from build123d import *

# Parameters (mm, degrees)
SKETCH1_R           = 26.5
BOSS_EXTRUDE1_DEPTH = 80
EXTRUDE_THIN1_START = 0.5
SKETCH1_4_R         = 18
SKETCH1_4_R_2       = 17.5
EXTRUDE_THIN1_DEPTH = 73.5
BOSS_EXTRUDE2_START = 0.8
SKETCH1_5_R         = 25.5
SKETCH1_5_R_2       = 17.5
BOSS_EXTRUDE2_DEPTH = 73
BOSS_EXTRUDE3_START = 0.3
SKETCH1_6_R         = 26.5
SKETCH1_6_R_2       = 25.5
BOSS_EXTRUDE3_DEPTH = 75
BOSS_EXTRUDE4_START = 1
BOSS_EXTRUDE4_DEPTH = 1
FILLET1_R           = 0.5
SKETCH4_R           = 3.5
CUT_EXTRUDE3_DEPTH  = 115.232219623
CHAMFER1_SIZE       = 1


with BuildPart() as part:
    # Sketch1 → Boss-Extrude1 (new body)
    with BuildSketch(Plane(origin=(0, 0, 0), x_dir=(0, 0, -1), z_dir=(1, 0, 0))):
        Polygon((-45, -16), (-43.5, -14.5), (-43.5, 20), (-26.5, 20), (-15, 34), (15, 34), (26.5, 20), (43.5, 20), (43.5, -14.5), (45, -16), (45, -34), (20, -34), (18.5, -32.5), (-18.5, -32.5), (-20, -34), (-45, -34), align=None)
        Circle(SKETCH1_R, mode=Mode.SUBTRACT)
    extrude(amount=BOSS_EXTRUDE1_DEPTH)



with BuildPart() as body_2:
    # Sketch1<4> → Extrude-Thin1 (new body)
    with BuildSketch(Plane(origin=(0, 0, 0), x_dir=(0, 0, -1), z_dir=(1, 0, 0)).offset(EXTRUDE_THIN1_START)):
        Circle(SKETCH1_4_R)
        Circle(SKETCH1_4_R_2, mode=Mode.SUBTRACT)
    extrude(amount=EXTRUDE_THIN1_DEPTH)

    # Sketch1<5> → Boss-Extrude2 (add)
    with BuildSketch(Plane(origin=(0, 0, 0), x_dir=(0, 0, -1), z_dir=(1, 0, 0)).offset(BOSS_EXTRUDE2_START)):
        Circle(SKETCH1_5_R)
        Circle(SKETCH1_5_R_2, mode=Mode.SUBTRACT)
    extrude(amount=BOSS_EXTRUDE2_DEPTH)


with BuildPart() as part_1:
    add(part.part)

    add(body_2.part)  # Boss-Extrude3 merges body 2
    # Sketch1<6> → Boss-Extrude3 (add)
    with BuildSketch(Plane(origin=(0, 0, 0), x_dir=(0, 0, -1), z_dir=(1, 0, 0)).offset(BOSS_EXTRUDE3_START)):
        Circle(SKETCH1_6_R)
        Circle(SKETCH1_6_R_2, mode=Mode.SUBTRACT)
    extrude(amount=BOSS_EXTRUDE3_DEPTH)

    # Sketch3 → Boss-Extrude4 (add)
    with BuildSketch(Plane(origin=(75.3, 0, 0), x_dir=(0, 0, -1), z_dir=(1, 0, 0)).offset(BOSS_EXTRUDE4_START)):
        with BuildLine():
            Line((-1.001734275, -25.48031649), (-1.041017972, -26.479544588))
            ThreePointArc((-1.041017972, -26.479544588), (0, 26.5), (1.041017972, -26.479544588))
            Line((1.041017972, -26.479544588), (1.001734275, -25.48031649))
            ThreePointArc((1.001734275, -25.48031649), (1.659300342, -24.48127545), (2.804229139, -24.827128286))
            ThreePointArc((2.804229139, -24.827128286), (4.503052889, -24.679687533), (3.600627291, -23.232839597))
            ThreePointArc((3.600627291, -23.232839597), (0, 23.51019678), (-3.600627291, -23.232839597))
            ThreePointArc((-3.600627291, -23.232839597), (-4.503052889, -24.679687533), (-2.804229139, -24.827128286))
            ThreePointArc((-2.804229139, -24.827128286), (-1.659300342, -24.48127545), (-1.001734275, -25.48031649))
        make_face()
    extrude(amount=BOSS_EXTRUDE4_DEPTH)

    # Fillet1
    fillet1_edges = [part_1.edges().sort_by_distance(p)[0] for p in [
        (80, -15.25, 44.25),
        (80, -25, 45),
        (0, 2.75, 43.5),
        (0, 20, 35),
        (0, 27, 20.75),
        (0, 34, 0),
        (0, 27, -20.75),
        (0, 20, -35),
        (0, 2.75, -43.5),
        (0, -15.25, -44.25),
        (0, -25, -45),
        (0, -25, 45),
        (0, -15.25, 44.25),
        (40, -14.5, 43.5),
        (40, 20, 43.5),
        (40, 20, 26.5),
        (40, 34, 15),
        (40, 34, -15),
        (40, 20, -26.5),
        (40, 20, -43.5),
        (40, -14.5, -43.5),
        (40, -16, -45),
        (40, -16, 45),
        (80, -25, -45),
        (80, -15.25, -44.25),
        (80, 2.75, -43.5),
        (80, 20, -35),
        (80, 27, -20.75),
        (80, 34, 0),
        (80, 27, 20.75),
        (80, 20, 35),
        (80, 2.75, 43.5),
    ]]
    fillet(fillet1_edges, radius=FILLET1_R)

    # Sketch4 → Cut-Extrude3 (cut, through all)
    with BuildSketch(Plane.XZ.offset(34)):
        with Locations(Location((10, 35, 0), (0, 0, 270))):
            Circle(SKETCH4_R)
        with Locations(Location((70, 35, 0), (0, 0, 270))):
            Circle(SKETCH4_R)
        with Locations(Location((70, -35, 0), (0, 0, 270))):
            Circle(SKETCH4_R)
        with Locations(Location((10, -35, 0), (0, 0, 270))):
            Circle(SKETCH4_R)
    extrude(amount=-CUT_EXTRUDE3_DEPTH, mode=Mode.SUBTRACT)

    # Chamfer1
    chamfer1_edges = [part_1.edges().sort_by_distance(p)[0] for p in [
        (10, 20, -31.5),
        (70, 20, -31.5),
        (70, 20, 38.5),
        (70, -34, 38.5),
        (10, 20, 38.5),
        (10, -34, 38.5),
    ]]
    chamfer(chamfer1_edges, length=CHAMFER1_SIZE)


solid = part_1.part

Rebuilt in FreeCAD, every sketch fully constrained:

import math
import FreeCAD as App
import Part
import Sketcher


def edges_at(feature, points):
    """Names of the edges that pass closest to the given points."""
    edges = feature.Shape.Edges
    near = lambda p: min(range(len(edges)), key=lambda i: edges[i].distToShape(Part.Vertex(*p))[0])
    return sorted({f"Edge{near(p) + 1}" for p in points})

doc = App.newDocument("Part")
params = doc.addObject("Spreadsheet::Sheet", "Params")
for row, (alias, value) in enumerate([
    ("sketch1_diameter", "53 mm"),
    ("sketch1_width", "18 mm"),
    ("sketch1_height", "25 mm"),
    ("sketch1_height2", "37 mm"),
    ("sketch1_height3", "17 mm"),
    ("pad1_length", "80 mm"),
    ("sketch2_diameter", "36 mm"),
    ("sketch2_diameter2", "35 mm"),
    ("pad2_length", "73.5 mm"),
    ("sketch3_diameter", "51 mm"),
    ("sketch3_diameter2", "35 mm"),
    ("pad3_length", "73 mm"),
    ("sketch4_diameter", "53 mm"),
    ("sketch4_diameter2", "51 mm"),
    ("pad4_length", "75 mm"),
    ("sketch5_radius", "1 mm"),
    ("sketch5_radius2", "26.5 mm"),
    ("sketch5_length", "1 mm"),
    ("pad5_length", "1 mm"),
    ("fillet_radius", "0.5 mm"),
    ("sketch6_diameter", "7 mm"),
    ("chamfer_size", "1 mm"),
], start=1):
    params.set(f"A{row}", alias)
    params.set(f"B{row}", "=" + value)
    params.setAlias(f"B{row}", alias)

body = doc.addObject("PartDesign::Body", "Body")

sketch1 = body.newObject("Sketcher::SketchObject", "Sketch")
sketch1.AttachmentSupport = (doc.getObject("YZ_Plane"), [""])
sketch1.MapMode = "FlatFace"
sketch1.addGeometry(Part.LineSegment(App.Vector(-14.5, 43.5, 0), App.Vector(-16, 45, 0)), False)
sketch1.addGeometry(Part.LineSegment(App.Vector(-16, 45, 0), App.Vector(-34, 45, 0)), False)
sketch1.addGeometry(Part.LineSegment(App.Vector(-34, 45, 0), App.Vector(-34, 20, 0)), False)
sketch1.addGeometry(Part.LineSegment(App.Vector(-34, 20, 0), App.Vector(-32.5, 18.5, 0)), False)
sketch1.addGeometry(Part.LineSegment(App.Vector(-32.5, 18.5, 0), App.Vector(-32.5, -18.5, 0)), False)
sketch1.addGeometry(Part.LineSegment(App.Vector(-32.5, -18.5, 0), App.Vector(-34, -20, 0)), False)
sketch1.addGeometry(Part.LineSegment(App.Vector(-34, -20, 0), App.Vector(-34, -45, 0)), False)
sketch1.addGeometry(Part.LineSegment(App.Vector(-34, -45, 0), App.Vector(-16, -45, 0)), False)
sketch1.addGeometry(Part.LineSegment(App.Vector(-16, -45, 0), App.Vector(-14.5, -43.5, 0)), False)
sketch1.addGeometry(Part.LineSegment(App.Vector(-14.5, -43.5, 0), App.Vector(20, -43.5, 0)), False)
sketch1.addGeometry(Part.LineSegment(App.Vector(20, -43.5, 0), App.Vector(20, -26.5, 0)), False)
sketch1.addGeometry(Part.LineSegment(App.Vector(20, -26.5, 0), App.Vector(34, -15, 0)), False)
sketch1.addGeometry(Part.LineSegment(App.Vector(34, -15, 0), App.Vector(34, 15, 0)), False)
sketch1.addGeometry(Part.LineSegment(App.Vector(34, 15, 0), App.Vector(20, 26.5, 0)), False)
sketch1.addGeometry(Part.LineSegment(App.Vector(20, 26.5, 0), App.Vector(20, 43.5, 0)), False)
sketch1.addGeometry(Part.LineSegment(App.Vector(20, 43.5, 0), App.Vector(-14.5, 43.5, 0)), False)
sketch1.addGeometry(Part.Circle(App.Vector(0, 0, 0), App.Vector(0, 0, 1), 26.5), False)
sketch1.addConstraint(Sketcher.Constraint("Coincident", 0, 2, 1, 1))
sketch1.addConstraint(Sketcher.Constraint("Coincident", 1, 2, 2, 1))
sketch1.addConstraint(Sketcher.Constraint("Coincident", 2, 2, 3, 1))
sketch1.addConstraint(Sketcher.Constraint("Coincident", 3, 2, 4, 1))
sketch1.addConstraint(Sketcher.Constraint("Coincident", 4, 2, 5, 1))
sketch1.addConstraint(Sketcher.Constraint("Coincident", 5, 2, 6, 1))
sketch1.addConstraint(Sketcher.Constraint("Coincident", 6, 2, 7, 1))
sketch1.addConstraint(Sketcher.Constraint("Coincident", 7, 2, 8, 1))
sketch1.addConstraint(Sketcher.Constraint("Coincident", 8, 2, 9, 1))
sketch1.addConstraint(Sketcher.Constraint("Coincident", 9, 2, 10, 1))
sketch1.addConstraint(Sketcher.Constraint("Coincident", 10, 2, 11, 1))
sketch1.addConstraint(Sketcher.Constraint("Coincident", 11, 2, 12, 1))
sketch1.addConstraint(Sketcher.Constraint("Coincident", 12, 2, 13, 1))
sketch1.addConstraint(Sketcher.Constraint("Coincident", 13, 2, 14, 1))
sketch1.addConstraint(Sketcher.Constraint("Coincident", 14, 2, 15, 1))
sketch1.addConstraint(Sketcher.Constraint("Coincident", 15, 2, 0, 1))
sketch1.addConstraint(Sketcher.Constraint("Horizontal", 1))
sketch1.addConstraint(Sketcher.Constraint("Vertical", 2))
sketch1.addConstraint(Sketcher.Constraint("Vertical", 4))
sketch1.addConstraint(Sketcher.Constraint("Vertical", 6))
sketch1.addConstraint(Sketcher.Constraint("Horizontal", 7))
sketch1.addConstraint(Sketcher.Constraint("Horizontal", 9))
sketch1.addConstraint(Sketcher.Constraint("Vertical", 10))
sketch1.addConstraint(Sketcher.Constraint("Vertical", 12))
sketch1.addConstraint(Sketcher.Constraint("Vertical", 14))
sketch1.addConstraint(Sketcher.Constraint("Horizontal", 15))
sketch1.addConstraint(Sketcher.Constraint("Coincident", 16, 3, -1, 1))
sketch1.addConstraint(Sketcher.Constraint("Symmetric", 2, 2, 5, 2, -1))
sketch1.addConstraint(Sketcher.Constraint("Symmetric", 0, 2, 7, 2, -1))
sketch1.addConstraint(Sketcher.Constraint("Symmetric", 10, 2, 13, 2, -1))
sketch1.addConstraint(Sketcher.Constraint("Symmetric", 8, 2, 15, 2, -1))
sketch1.addConstraint(Sketcher.Constraint("Parallel", 0, 3))
sketch1.addConstraint(Sketcher.Constraint("Perpendicular", 3, 5))
sketch1.addConstraint(Sketcher.Constraint("Parallel", 5, 8))
sketch1.addConstraint(Sketcher.Constraint("Equal", 0, 3))
sketch1.addConstraint(Sketcher.Constraint("Equal", 11, 13))
sketch1.addConstraint(Sketcher.Constraint("Diameter", 16, 53.0))
sketch1.addConstraint(Sketcher.Constraint("DistanceX", 1, 2, 1, 1, 18.0))
sketch1.addConstraint(Sketcher.Constraint("DistanceY", 2, 2, 2, 1, 25.0))
sketch1.addConstraint(Sketcher.Constraint("DistanceY", 4, 2, 4, 1, 37.0))
sketch1.addConstraint(Sketcher.Constraint("DistanceY", 10, 1, 10, 2, 17.0))
sketch1.addConstraint(Sketcher.Constraint("DistanceY", 12, 1, 12, 2, 30.0))
sketch1.addConstraint(Sketcher.Constraint("DistanceX", 9, 1, 9, 2, 34.5))
sketch1.addConstraint(Sketcher.Constraint("DistanceX", 0, 2, -1, 1, 16.0))
sketch1.addConstraint(Sketcher.Constraint("DistanceY", -1, 1, 0, 2, 45.0))
sketch1.addConstraint(Sketcher.Constraint("DistanceX", -1, 1, 11, 2, 34.0))
sketch1.setExpression("Constraints[36]", "Params.sketch1_diameter")
sketch1.setExpression("Constraints[37]", "Params.sketch1_width")
sketch1.setExpression("Constraints[38]", "Params.sketch1_height")
sketch1.setExpression("Constraints[39]", "Params.sketch1_height2")
sketch1.setExpression("Constraints[40]", "Params.sketch1_height3")
pad1 = body.newObject("PartDesign::Pad", "Pad")
pad1.Profile = sketch1
pad1.setExpression("Length", "Params.pad1_length")
body2 = doc.addObject("PartDesign::Body", "Body001")

sketch2 = body2.newObject("Sketcher::SketchObject", "Sketch001")
sketch2.AttachmentSupport = (doc.getObject("YZ_Plane001"), [""])
sketch2.MapMode = "FlatFace"
sketch2.AttachmentOffset = App.Placement(App.Vector(0, 0, 0.5), App.Rotation())
sketch2.addGeometry(Part.Circle(App.Vector(0, 0, 0), App.Vector(0, 0, 1), 18), False)
sketch2.addGeometry(Part.Circle(App.Vector(0, 0, 0), App.Vector(0, 0, 1), 18), False)
sketch2.addConstraint(Sketcher.Constraint("Coincident", 0, 3, -1, 1))
sketch2.addConstraint(Sketcher.Constraint("Coincident", 1, 3, -1, 1))
sketch2.addConstraint(Sketcher.Constraint("Diameter", 0, 36.0))
sketch2.addConstraint(Sketcher.Constraint("Diameter", 1, 35.0))
sketch2.setExpression("Constraints[2]", "Params.sketch2_diameter")
sketch2.setExpression("Constraints[3]", "Params.sketch2_diameter2")
pad2 = body2.newObject("PartDesign::Pad", "Pad001")
pad2.Profile = sketch2
pad2.setExpression("Length", "Params.pad2_length")

sketch3 = body2.newObject("Sketcher::SketchObject", "Sketch002")
sketch3.AttachmentSupport = (doc.getObject("YZ_Plane001"), [""])
sketch3.MapMode = "FlatFace"
sketch3.AttachmentOffset = App.Placement(App.Vector(0, 0, 0.8), App.Rotation())
sketch3.addGeometry(Part.Circle(App.Vector(0, 0, 0), App.Vector(0, 0, 1), 26), False)
sketch3.addGeometry(Part.Circle(App.Vector(0, 0, 0), App.Vector(0, 0, 1), 18), False)
sketch3.addConstraint(Sketcher.Constraint("Coincident", 0, 3, -1, 1))
sketch3.addConstraint(Sketcher.Constraint("Coincident", 1, 3, -1, 1))
sketch3.addConstraint(Sketcher.Constraint("Diameter", 0, 51.0))
sketch3.addConstraint(Sketcher.Constraint("Diameter", 1, 35.0))
sketch3.setExpression("Constraints[2]", "Params.sketch3_diameter")
sketch3.setExpression("Constraints[3]", "Params.sketch3_diameter2")
pad3 = body2.newObject("PartDesign::Pad", "Pad002")
pad3.Profile = sketch3
pad3.setExpression("Length", "Params.pad3_length")
body.AllowCompound = True
doc.recompute()

boolean = body.newObject("PartDesign::Boolean", "Boolean")
boolean.Type = "Fuse"
boolean.addObjects([body2])

sketch4 = body.newObject("Sketcher::SketchObject", "Sketch003")
sketch4.AttachmentSupport = (doc.getObject("YZ_Plane"), [""])
sketch4.MapMode = "FlatFace"
sketch4.AttachmentOffset = App.Placement(App.Vector(0, 0, 0.3), App.Rotation())
sketch4.addGeometry(Part.Circle(App.Vector(0, 0, 0), App.Vector(0, 0, 1), 26), False)
sketch4.addGeometry(Part.Circle(App.Vector(0, 0, 0), App.Vector(0, 0, 1), 26), False)
sketch4.addConstraint(Sketcher.Constraint("Coincident", 0, 3, -1, 1))
sketch4.addConstraint(Sketcher.Constraint("Coincident", 1, 3, -1, 1))
sketch4.addConstraint(Sketcher.Constraint("Diameter", 0, 53.0))
sketch4.addConstraint(Sketcher.Constraint("Diameter", 1, 51.0))
sketch4.setExpression("Constraints[2]", "Params.sketch4_diameter")
sketch4.setExpression("Constraints[3]", "Params.sketch4_diameter2")
pad4 = body.newObject("PartDesign::Pad", "Pad003")
pad4.Profile = sketch4
pad4.setExpression("Length", "Params.pad4_length")

sketch5 = body.newObject("Sketcher::SketchObject", "Sketch004")
sketch5.AttachmentSupport = (doc.getObject("YZ_Plane"), [""])
sketch5.MapMode = "FlatFace"
sketch5.AttachmentOffset = App.Placement(App.Vector(0, 0, 76.3), App.Rotation())
sketch5.addGeometry(Part.LineSegment(App.Vector(-26.479545, 1.041018, 0), App.Vector(-25.480316, 1.001734, 0)), False)
sketch5.addGeometry(Part.ArcOfCircle(Part.Circle(App.Vector(-25.421448, 2, 0), App.Vector(0, 0, 1), 1), math.radians(-93.374888), math.radians(53.535875)), False)
sketch5.addGeometry(Part.ArcOfCircle(Part.Circle(App.Vector(-24.232809, 3.608458, 0), App.Vector(0, 0, 1), 1), math.radians(-0.448687), math.radians(233.535875)), False)
sketch5.addGeometry(Part.ArcOfCircle(Part.Circle(App.Vector(0, 0, 0), App.Vector(0, 0, 1), 23.510197), math.radians(-171.190382), math.radians(171.190382)), False)
sketch5.addGeometry(Part.ArcOfCircle(Part.Circle(App.Vector(-24.232809, -3.608458, 0), App.Vector(0, 0, 1), 1), math.radians(126.464125), math.radians(360.448687)), False)
sketch5.addGeometry(Part.ArcOfCircle(Part.Circle(App.Vector(-25.421448, -2, 0), App.Vector(0, 0, 1), 1), math.radians(-53.535875), math.radians(93.374888)), False)
sketch5.addGeometry(Part.LineSegment(App.Vector(-25.480316, -1.001734, 0), App.Vector(-26.479545, -1.041018, 0)), False)
sketch5.addGeometry(Part.ArcOfCircle(Part.Circle(App.Vector(0, 0, 0), App.Vector(0, 0, 1), 26.5), math.radians(-177.748631), math.radians(177.748631)), False)
sketch5.addConstraint(Sketcher.Constraint("Coincident", 0, 2, 1, 1))
sketch5.addConstraint(Sketcher.Constraint("Tangent", 1, 2, 2, 2))
sketch5.addConstraint(Sketcher.Constraint("Coincident", 2, 1, 3, 2))
sketch5.addConstraint(Sketcher.Constraint("Coincident", 3, 1, 4, 2))
sketch5.addConstraint(Sketcher.Constraint("Tangent", 4, 1, 5, 1))
sketch5.addConstraint(Sketcher.Constraint("Coincident", 5, 2, 6, 1))
sketch5.addConstraint(Sketcher.Constraint("Coincident", 6, 2, 7, 1))
sketch5.addConstraint(Sketcher.Constraint("Coincident", 7, 2, 0, 1))
sketch5.addConstraint(Sketcher.Constraint("Coincident", 3, 3, -1, 1))
sketch5.addConstraint(Sketcher.Constraint("Coincident", 7, 3, -1, 1))
sketch5.addConstraint(Sketcher.Constraint("Equal", 1, 2))
sketch5.addConstraint(Sketcher.Constraint("Equal", 2, 4))
sketch5.addConstraint(Sketcher.Constraint("Equal", 4, 5))
sketch5.addConstraint(Sketcher.Constraint("Symmetric", 2, 3, 4, 3, -1))
sketch5.addConstraint(Sketcher.Constraint("Symmetric", 0, 2, 5, 2, -1))
sketch5.addConstraint(Sketcher.Constraint("Vertical", 6, 2, 7, 2))
sketch5.addConstraint(Sketcher.Constraint("Radius", 1, 1.0))
sketch5.addConstraint(Sketcher.Constraint("Radius", 7, 26.5))
sketch5.addConstraint(Sketcher.Constraint("Distance", 0, 1.0))
sketch5.addConstraint(Sketcher.Constraint("DistanceY", -1, 1, 1, 3, 2.0))
sketch5.addConstraint(Sketcher.Constraint("Radius", 3, 23.510197))
sketch5.addConstraint(Sketcher.Constraint("DistanceY", 1, 2, 2, 1, 0.796398))
sketch5.addConstraint(Sketcher.Constraint("DistanceX", 2, 3, -1, 1, 24.232809))
sketch5.addConstraint(Sketcher.Constraint("DistanceX", 6, 2, 5, 2, 0.999228))
sketch5.setExpression("Constraints[16]", "Params.sketch5_radius")
sketch5.setExpression("Constraints[17]", "Params.sketch5_radius2")
sketch5.setExpression("Constraints[18]", "Params.sketch5_length")
pad5 = body.newObject("PartDesign::Pad", "Pad004")
pad5.Profile = sketch5
pad5.setExpression("Length", "Params.pad5_length")
doc.recompute()

fillet = body.newObject("PartDesign::Fillet", "Fillet")
fillet.Base = (pad5, edges_at(pad5, [
    (80, -15.25, 44.25),
    (80, -25, 45),
    (0, 2.75, 43.5),
    (0, 20, 35),
    (0, 27, 20.75),
    (0, 34, 0),
    (0, 27, -20.75),
    (0, 20, -35),
    (0, 2.75, -43.5),
    (0, -15.25, -44.25),
    (0, -25, -45),
    (0, -25, 45),
    (0, -15.25, 44.25),
    (40, -14.5, 43.5),
    (40, 20, 43.5),
    (40, 20, 26.5),
    (40, 34, 15),
    (40, 34, -15),
    (40, 20, -26.5),
    (40, 20, -43.5),
    (40, -14.5, -43.5),
    (40, -16, -45),
    (40, -16, 45),
    (80, -25, -45),
    (80, -15.25, -44.25),
    (80, 2.75, -43.5),
    (80, 20, -35),
    (80, 27, -20.75),
    (80, 34, 0),
    (80, 27, 20.75),
    (80, 20, 35),
    (80, 2.75, 43.5),
]))
fillet.setExpression("Radius", "Params.fillet_radius")

sketch6 = body.newObject("Sketcher::SketchObject", "Sketch005")
sketch6.AttachmentSupport = (doc.getObject("XZ_Plane"), [""])
sketch6.MapMode = "FlatFace"
sketch6.AttachmentOffset = App.Placement(App.Vector(0, 0, 34), App.Rotation())
sketch6.addGeometry(Part.Circle(App.Vector(10, 35, 0), App.Vector(0, 0, 1), 3.5), False)
sketch6.addGeometry(Part.Circle(App.Vector(70, 35, 0), App.Vector(0, 0, 1), 3.5), False)
sketch6.addGeometry(Part.Circle(App.Vector(70, -35, 0), App.Vector(0, 0, 1), 3.5), False)
sketch6.addGeometry(Part.Circle(App.Vector(10, -35, 0), App.Vector(0, 0, 1), 3.5), False)
sketch6.addConstraint(Sketcher.Constraint("Equal", 0, 1))
sketch6.addConstraint(Sketcher.Constraint("Equal", 1, 2))
sketch6.addConstraint(Sketcher.Constraint("Equal", 2, 3))
sketch6.addConstraint(Sketcher.Constraint("Symmetric", 1, 3, 2, 3, -1))
sketch6.addConstraint(Sketcher.Constraint("Symmetric", 0, 3, 3, 3, -1))
sketch6.addConstraint(Sketcher.Constraint("Horizontal", 0, 3, 1, 3))
sketch6.addConstraint(Sketcher.Constraint("Diameter", 0, 7.0))
sketch6.addConstraint(Sketcher.Constraint("DistanceX", -1, 1, 0, 3, 10.0))
sketch6.addConstraint(Sketcher.Constraint("DistanceY", -1, 1, 0, 3, 35.0))
sketch6.addConstraint(Sketcher.Constraint("DistanceX", -1, 1, 1, 3, 70.0))
sketch6.setExpression("Constraints[6]", "Params.sketch6_diameter")
pocket1 = body.newObject("PartDesign::Pocket", "Pocket")
pocket1.Profile = sketch6
pocket1.Type = "ThroughAll"
doc.recompute()

chamfer = body.newObject("PartDesign::Chamfer", "Chamfer")
chamfer.Base = (pocket1, edges_at(pocket1, [
    (10, 20, -31.5),
    (70, 20, -31.5),
    (70, 20, 38.5),
    (70, -34, 38.5),
    (10, 20, 38.5),
    (10, -34, 38.5),
]))
chamfer.setExpression("Size", "Params.chamfer_size")

doc.recompute()
